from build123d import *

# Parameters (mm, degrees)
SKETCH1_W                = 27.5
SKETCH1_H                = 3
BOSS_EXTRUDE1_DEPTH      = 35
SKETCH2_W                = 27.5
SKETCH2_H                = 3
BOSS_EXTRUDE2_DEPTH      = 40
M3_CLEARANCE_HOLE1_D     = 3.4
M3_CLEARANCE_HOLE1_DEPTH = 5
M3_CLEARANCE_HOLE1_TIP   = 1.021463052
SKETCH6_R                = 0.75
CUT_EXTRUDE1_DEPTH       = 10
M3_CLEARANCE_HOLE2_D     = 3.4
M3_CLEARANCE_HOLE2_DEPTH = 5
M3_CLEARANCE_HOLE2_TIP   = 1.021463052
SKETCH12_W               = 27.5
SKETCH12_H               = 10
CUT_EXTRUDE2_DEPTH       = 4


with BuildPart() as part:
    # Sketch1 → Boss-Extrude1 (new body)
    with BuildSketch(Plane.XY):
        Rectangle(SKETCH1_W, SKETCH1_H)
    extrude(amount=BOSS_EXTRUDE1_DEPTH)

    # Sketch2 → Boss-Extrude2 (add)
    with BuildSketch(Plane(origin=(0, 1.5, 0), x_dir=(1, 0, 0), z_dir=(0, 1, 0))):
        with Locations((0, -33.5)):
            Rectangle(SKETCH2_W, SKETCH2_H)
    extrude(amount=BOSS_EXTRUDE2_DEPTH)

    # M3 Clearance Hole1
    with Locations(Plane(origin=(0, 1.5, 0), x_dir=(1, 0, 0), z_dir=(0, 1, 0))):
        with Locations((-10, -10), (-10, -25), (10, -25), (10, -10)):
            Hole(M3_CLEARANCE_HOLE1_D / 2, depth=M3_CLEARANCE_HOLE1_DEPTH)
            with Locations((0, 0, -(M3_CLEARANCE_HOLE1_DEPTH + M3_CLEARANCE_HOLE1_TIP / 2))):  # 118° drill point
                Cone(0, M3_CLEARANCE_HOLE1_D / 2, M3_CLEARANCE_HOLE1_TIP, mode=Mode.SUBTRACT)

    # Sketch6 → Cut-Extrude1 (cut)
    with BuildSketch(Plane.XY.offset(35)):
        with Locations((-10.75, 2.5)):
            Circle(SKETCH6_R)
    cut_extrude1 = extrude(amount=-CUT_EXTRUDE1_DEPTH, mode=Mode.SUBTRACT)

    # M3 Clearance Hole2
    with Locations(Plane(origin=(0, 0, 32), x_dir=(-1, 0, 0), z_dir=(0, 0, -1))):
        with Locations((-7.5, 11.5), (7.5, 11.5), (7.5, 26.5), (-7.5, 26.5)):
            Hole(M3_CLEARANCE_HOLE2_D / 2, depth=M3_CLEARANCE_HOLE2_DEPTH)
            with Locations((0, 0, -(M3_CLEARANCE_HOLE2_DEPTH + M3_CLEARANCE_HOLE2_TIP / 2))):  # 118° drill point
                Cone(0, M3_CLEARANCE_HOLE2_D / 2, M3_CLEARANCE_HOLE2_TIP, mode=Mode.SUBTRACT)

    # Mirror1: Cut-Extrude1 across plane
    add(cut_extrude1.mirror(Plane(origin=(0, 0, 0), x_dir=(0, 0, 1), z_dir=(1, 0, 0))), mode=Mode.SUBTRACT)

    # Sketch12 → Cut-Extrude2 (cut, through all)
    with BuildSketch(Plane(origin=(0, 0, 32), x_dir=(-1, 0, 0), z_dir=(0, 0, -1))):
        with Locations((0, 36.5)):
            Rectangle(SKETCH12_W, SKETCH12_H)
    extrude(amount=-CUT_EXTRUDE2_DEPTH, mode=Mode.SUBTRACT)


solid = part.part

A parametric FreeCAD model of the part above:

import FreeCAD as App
import Part
import Sketcher

V = App.Vector
Q = App.Units.Quantity

doc = App.newDocument("Part")
body = doc.addObject("PartDesign::Body", "Body")

sketch1 = body.newObject("Sketcher::SketchObject", "Sketch")
sketch1.AttachmentSupport = (doc.getObject("XY_Plane"), [""])
sketch1.MapMode = "FlatFace"
sketch1.addGeometry(Part.LineSegment(V(-13.8, 1.5, 0), V(-13.8, -1.5, 0)), False)
sketch1.addGeometry(Part.LineSegment(V(-13.8, -1.5, 0), V(13.8, -1.5, 0)), False)
sketch1.addGeometry(Part.LineSegment(V(13.8, -1.5, 0), V(13.8, 1.5, 0)), False)
sketch1.addGeometry(Part.LineSegment(V(13.8, 1.5, 0), V(-13.8, 1.5, 0)), False)
sketch1.addConstraint(Sketcher.Constraint("Coincident", 0, 2, 1, 1))
sketch1.addConstraint(Sketcher.Constraint("Coincident", 1, 2, 2, 1))
sketch1.addConstraint(Sketcher.Constraint("Coincident", 2, 2, 3, 1))
sketch1.addConstraint(Sketcher.Constraint("Coincident", 3, 2, 0, 1))
sketch1.addConstraint(Sketcher.Constraint("Vertical", 0))
sketch1.addConstraint(Sketcher.Constraint("Horizontal", 1))
sketch1.addConstraint(Sketcher.Constraint("Vertical", 2))
sketch1.addConstraint(Sketcher.Constraint("Horizontal", 3))
sketch1.addConstraint(Sketcher.Constraint("Symmetric", 0, 2, 2, 2, -1, 1))
sketch1.addConstraint(Sketcher.Constraint("DistanceY", 0, 2, 0, 1, Q("3 mm")))
sketch1.addConstraint(Sketcher.Constraint("DistanceX", 1, 1, 1, 2, Q("27.5 mm")))
pad1 = body.newObject("PartDesign::Pad", "Pad")
pad1.Profile = sketch1
pad1.Length = 35

sketch2 = body.newObject("Sketcher::SketchObject", "Sketch001")
sketch2.AttachmentSupport = (doc.getObject("XZ_Plane"), [""])
sketch2.MapMode = "FlatFace"
sketch2.AttachmentOffset = App.Placement(V(0, 0, -1.5), App.Rotation())
sketch2.addGeometry(Part.LineSegment(V(-13.8, 32, 0), V(-13.8, 35, 0)), False)
sketch2.addGeometry(Part.LineSegment(V(-13.8, 35, 0), V(13.8, 35, 0)), False)
sketch2.addGeometry(Part.LineSegment(V(13.8, 35, 0), V(13.8, 32, 0)), False)
sketch2.addGeometry(Part.LineSegment(V(13.8, 32, 0), V(-13.8, 32, 0)), False)
sketch2.addConstraint(Sketcher.Constraint("Coincident", 0, 2, 1, 1))
sketch2.addConstraint(Sketcher.Constraint("Coincident", 1, 2, 2, 1))
sketch2.addConstraint(Sketcher.Constraint("Coincident", 2, 2, 3, 1))
sketch2.addConstraint(Sketcher.Constraint("Coincident", 3, 2, 0, 1))
sketch2.addConstraint(Sketcher.Constraint("Vertical", 0))
sketch2.addConstraint(Sketcher.Constraint("Horizontal", 1))
sketch2.addConstraint(Sketcher.Constraint("Vertical", 2))
sketch2.addConstraint(Sketcher.Constraint("Horizontal", 3))
sketch2.addConstraint(Sketcher.Constraint("DistanceY", 0, 1, 0, 2, Q("3 mm")))
sketch2.addConstraint(Sketcher.Constraint("DistanceX", 1, 1, 1, 2, Q("27.5 mm")))
sketch2.addConstraint(Sketcher.Constraint("DistanceY", -1, 1, 0, 2, Q("35 mm")))
sketch2.addConstraint(Sketcher.Constraint("DistanceX", 0, 2, -1, 1, Q("13.75 mm")))
pad2 = body.newObject("PartDesign::Pad", "Pad001")
pad2.Profile = sketch2
pad2.Length = 40
pad2.Reversed = True

sketch3 = body.newObject("Sketcher::SketchObject", "Sketch002")
sketch3.AttachmentSupport = (doc.getObject("XZ_Plane"), [""])
sketch3.MapMode = "FlatFace"
sketch3.AttachmentOffset = App.Placement(V(0, 0, -1.5), App.Rotation())
sketch3.addGeometry(Part.Circle(V(-10, 10, 0), V(0, 0, 1), 1.7), False)
sketch3.addGeometry(Part.Circle(V(-10, 25, 0), V(0, 0, 1), 1.7), False)
sketch3.addGeometry(Part.Circle(V(10, 25, 0), V(0, 0, 1), 1.7), False)
sketch3.addGeometry(Part.Circle(V(10, 10, 0), V(0, 0, 1), 1.7), False)
sketch3.addConstraint(Sketcher.Constraint("Equal", 0, 1))
sketch3.addConstraint(Sketcher.Constraint("Equal", 1, 2))
sketch3.addConstraint(Sketcher.Constraint("Equal", 2, 3))
sketch3.addConstraint(Sketcher.Constraint("Symmetric", 1, 3, 2, 3, -2))
sketch3.addConstraint(Sketcher.Constraint("Symmetric", 0, 3, 3, 3, -2))
sketch3.addConstraint(Sketcher.Constraint("Vertical", 0, 3, 1, 3))
sketch3.addConstraint(Sketcher.Constraint("Diameter", 0, Q("3.4 mm")))
sketch3.addConstraint(Sketcher.Constraint("DistanceX", 0, 3, -1, 1, Q("10 mm")))
sketch3.addConstraint(Sketcher.Constraint("DistanceY", -1, 1, 0, 3, Q("10 mm")))
sketch3.addConstraint(Sketcher.Constraint("DistanceY", -1, 1, 1, 3, Q("25 mm")))
doc.recompute()
hole = body.newObject("PartDesign::Hole", "Hole")
hole.Profile = sketch3
hole.ThreadType = "None"
hole.Diameter = 3.4
hole.DepthType = "Dimension"
hole.Depth = 5
hole.DrillPoint = "Angled"
hole.DrillPointAngle = 118
hole.Reversed = True

sketch4 = body.newObject("Sketcher::SketchObject", "Sketch003")
sketch4.AttachmentSupport = (doc.getObject("XY_Plane"), [""])
sketch4.MapMode = "FlatFace"
sketch4.AttachmentOffset = App.Placement(V(0, 0, 35), App.Rotation())
sketch4.addGeometry(Part.Circle(V(-10.8, 2.5, 0), V(0, 0, 1), 0.8), False)
sketch4.addConstraint(Sketcher.Constraint("Diameter", 0, Q("1.5 mm")))
sketch4.addConstraint(Sketcher.Constraint("DistanceY", -1, 1, 0, 3, Q("2.5 mm")))
sketch4.addConstraint(Sketcher.Constraint("DistanceX", 0, 3, -1, 1, Q("10.75 mm")))
pocket1 = body.newObject("PartDesign::Pocket", "Pocket")
pocket1.Profile = sketch4
pocket1.Length = 10

sketch5 = body.newObject("Sketcher::SketchObject", "Sketch004")
sketch5.AttachmentSupport = (doc.getObject("XY_Plane"), [""])
sketch5.MapMode = "FlatFace"
sketch5.AttachmentOffset = App.Placement(V(0, 0, 32), App.Rotation())
sketch5.addGeometry(Part.Circle(V(7.5, 11.5, 0), V(0, 0, 1), 1.7), False)
sketch5.addGeometry(Part.Circle(V(-7.5, 11.5, 0), V(0, 0, 1), 1.7), False)
sketch5.addGeometry(Part.Circle(V(-7.5, 26.5, 0), V(0, 0, 1), 1.7), False)
sketch5.addGeometry(Part.Circle(V(7.5, 26.5, 0), V(0, 0, 1), 1.7), False)
sketch5.addConstraint(Sketcher.Constraint("Equal", 0, 1))
sketch5.addConstraint(Sketcher.Constraint("Equal", 1, 2))
sketch5.addConstraint(Sketcher.Constraint("Equal", 2, 3))
sketch5.addConstraint(Sketcher.Constraint("Symmetric", 0, 3, 1, 3, -2))
sketch5.addConstraint(Sketcher.Constraint("Symmetric", 2, 3, 3, 3, -2))
sketch5.addConstraint(Sketcher.Constraint("Vertical", 1, 3, 2, 3))
sketch5.addConstraint(Sketcher.Constraint("Diameter", 0, Q("3.4 mm")))
sketch5.addConstraint(Sketcher.Constraint("DistanceX", 1, 3, 0, 3, Q("15 mm")))
sketch5.addConstraint(Sketcher.Constraint("DistanceY", 1, 3, 2, 3, Q("15 mm")))
sketch5.addConstraint(Sketcher.Constraint("DistanceY", -1, 1, 0, 3, Q("11.5 mm")))
doc.recompute()
hole2 = body.newObject("PartDesign::Hole", "Hole001")
hole2.Profile = sketch5
hole2.ThreadType = "None"
hole2.Diameter = 3.4
hole2.DepthType = "Dimension"
hole2.Depth = 5
hole2.DrillPoint = "Angled"
hole2.DrillPointAngle = 118
hole2.Reversed = True
doc.recompute()

mirrored = body.newObject("PartDesign::Mirrored", "Mirrored")
mirrored.Originals = [pocket1]
mirrored.MirrorPlane = (doc.getObject("YZ_Plane"), [""])
body.Tip = mirrored

sketch6 = body.newObject("Sketcher::SketchObject", "Sketch005")
sketch6.AttachmentSupport = (doc.getObject("XY_Plane"), [""])
sketch6.MapMode = "FlatFace"
sketch6.AttachmentOffset = App.Placement(V(0, 0, 32), App.Rotation())
sketch6.addGeometry(Part.LineSegment(V(14, 42, 0), V(14, 32, 0)), False)
sketch6.addGeometry(Part.LineSegment(V(14, 32, 0), V(-14, 32, 0)), False)
sketch6.addGeometry(Part.LineSegment(V(-14, 32, 0), V(-14, 42, 0)), False)
sketch6.addGeometry(Part.LineSegment(V(-14, 42, 0), V(14, 42, 0)), False)
sketch6.addConstraint(Sketcher.Constraint("Coincident", 0, 2, 1, 1))
sketch6.addConstraint(Sketcher.Constraint("Coincident", 1, 2, 2, 1))
sketch6.addConstraint(Sketcher.Constraint("Coincident", 2, 2, 3, 1))
sketch6.addConstraint(Sketcher.Constraint("Coincident", 3, 2, 0, 1))
sketch6.addConstraint(Sketcher.Constraint("Vertical", 0))
sketch6.addConstraint(Sketcher.Constraint("Horizontal", 1))
sketch6.addConstraint(Sketcher.Constraint("Vertical", 2))
sketch6.addConstraint(Sketcher.Constraint("Horizontal", 3))
sketch6.addConstraint(Sketcher.Constraint("DistanceY", 0, 2, 0, 1, Q("10 mm")))
sketch6.addConstraint(Sketcher.Constraint("DistanceX", 1, 2, 1, 1, Q("27.5 mm")))
sketch6.addConstraint(Sketcher.Constraint("DistanceY", -1, 1, 0, 2, Q("31.5 mm")))
sketch6.addConstraint(Sketcher.Constraint("DistanceX", -1, 1, 0, 2, Q("13.75 mm")))
pocket2 = body.newObject("PartDesign::Pocket", "Pocket001")
pocket2.Profile = sketch6
pocket2.Type = "ThroughAll"
pocket2.Reversed = True

doc.recompute()
